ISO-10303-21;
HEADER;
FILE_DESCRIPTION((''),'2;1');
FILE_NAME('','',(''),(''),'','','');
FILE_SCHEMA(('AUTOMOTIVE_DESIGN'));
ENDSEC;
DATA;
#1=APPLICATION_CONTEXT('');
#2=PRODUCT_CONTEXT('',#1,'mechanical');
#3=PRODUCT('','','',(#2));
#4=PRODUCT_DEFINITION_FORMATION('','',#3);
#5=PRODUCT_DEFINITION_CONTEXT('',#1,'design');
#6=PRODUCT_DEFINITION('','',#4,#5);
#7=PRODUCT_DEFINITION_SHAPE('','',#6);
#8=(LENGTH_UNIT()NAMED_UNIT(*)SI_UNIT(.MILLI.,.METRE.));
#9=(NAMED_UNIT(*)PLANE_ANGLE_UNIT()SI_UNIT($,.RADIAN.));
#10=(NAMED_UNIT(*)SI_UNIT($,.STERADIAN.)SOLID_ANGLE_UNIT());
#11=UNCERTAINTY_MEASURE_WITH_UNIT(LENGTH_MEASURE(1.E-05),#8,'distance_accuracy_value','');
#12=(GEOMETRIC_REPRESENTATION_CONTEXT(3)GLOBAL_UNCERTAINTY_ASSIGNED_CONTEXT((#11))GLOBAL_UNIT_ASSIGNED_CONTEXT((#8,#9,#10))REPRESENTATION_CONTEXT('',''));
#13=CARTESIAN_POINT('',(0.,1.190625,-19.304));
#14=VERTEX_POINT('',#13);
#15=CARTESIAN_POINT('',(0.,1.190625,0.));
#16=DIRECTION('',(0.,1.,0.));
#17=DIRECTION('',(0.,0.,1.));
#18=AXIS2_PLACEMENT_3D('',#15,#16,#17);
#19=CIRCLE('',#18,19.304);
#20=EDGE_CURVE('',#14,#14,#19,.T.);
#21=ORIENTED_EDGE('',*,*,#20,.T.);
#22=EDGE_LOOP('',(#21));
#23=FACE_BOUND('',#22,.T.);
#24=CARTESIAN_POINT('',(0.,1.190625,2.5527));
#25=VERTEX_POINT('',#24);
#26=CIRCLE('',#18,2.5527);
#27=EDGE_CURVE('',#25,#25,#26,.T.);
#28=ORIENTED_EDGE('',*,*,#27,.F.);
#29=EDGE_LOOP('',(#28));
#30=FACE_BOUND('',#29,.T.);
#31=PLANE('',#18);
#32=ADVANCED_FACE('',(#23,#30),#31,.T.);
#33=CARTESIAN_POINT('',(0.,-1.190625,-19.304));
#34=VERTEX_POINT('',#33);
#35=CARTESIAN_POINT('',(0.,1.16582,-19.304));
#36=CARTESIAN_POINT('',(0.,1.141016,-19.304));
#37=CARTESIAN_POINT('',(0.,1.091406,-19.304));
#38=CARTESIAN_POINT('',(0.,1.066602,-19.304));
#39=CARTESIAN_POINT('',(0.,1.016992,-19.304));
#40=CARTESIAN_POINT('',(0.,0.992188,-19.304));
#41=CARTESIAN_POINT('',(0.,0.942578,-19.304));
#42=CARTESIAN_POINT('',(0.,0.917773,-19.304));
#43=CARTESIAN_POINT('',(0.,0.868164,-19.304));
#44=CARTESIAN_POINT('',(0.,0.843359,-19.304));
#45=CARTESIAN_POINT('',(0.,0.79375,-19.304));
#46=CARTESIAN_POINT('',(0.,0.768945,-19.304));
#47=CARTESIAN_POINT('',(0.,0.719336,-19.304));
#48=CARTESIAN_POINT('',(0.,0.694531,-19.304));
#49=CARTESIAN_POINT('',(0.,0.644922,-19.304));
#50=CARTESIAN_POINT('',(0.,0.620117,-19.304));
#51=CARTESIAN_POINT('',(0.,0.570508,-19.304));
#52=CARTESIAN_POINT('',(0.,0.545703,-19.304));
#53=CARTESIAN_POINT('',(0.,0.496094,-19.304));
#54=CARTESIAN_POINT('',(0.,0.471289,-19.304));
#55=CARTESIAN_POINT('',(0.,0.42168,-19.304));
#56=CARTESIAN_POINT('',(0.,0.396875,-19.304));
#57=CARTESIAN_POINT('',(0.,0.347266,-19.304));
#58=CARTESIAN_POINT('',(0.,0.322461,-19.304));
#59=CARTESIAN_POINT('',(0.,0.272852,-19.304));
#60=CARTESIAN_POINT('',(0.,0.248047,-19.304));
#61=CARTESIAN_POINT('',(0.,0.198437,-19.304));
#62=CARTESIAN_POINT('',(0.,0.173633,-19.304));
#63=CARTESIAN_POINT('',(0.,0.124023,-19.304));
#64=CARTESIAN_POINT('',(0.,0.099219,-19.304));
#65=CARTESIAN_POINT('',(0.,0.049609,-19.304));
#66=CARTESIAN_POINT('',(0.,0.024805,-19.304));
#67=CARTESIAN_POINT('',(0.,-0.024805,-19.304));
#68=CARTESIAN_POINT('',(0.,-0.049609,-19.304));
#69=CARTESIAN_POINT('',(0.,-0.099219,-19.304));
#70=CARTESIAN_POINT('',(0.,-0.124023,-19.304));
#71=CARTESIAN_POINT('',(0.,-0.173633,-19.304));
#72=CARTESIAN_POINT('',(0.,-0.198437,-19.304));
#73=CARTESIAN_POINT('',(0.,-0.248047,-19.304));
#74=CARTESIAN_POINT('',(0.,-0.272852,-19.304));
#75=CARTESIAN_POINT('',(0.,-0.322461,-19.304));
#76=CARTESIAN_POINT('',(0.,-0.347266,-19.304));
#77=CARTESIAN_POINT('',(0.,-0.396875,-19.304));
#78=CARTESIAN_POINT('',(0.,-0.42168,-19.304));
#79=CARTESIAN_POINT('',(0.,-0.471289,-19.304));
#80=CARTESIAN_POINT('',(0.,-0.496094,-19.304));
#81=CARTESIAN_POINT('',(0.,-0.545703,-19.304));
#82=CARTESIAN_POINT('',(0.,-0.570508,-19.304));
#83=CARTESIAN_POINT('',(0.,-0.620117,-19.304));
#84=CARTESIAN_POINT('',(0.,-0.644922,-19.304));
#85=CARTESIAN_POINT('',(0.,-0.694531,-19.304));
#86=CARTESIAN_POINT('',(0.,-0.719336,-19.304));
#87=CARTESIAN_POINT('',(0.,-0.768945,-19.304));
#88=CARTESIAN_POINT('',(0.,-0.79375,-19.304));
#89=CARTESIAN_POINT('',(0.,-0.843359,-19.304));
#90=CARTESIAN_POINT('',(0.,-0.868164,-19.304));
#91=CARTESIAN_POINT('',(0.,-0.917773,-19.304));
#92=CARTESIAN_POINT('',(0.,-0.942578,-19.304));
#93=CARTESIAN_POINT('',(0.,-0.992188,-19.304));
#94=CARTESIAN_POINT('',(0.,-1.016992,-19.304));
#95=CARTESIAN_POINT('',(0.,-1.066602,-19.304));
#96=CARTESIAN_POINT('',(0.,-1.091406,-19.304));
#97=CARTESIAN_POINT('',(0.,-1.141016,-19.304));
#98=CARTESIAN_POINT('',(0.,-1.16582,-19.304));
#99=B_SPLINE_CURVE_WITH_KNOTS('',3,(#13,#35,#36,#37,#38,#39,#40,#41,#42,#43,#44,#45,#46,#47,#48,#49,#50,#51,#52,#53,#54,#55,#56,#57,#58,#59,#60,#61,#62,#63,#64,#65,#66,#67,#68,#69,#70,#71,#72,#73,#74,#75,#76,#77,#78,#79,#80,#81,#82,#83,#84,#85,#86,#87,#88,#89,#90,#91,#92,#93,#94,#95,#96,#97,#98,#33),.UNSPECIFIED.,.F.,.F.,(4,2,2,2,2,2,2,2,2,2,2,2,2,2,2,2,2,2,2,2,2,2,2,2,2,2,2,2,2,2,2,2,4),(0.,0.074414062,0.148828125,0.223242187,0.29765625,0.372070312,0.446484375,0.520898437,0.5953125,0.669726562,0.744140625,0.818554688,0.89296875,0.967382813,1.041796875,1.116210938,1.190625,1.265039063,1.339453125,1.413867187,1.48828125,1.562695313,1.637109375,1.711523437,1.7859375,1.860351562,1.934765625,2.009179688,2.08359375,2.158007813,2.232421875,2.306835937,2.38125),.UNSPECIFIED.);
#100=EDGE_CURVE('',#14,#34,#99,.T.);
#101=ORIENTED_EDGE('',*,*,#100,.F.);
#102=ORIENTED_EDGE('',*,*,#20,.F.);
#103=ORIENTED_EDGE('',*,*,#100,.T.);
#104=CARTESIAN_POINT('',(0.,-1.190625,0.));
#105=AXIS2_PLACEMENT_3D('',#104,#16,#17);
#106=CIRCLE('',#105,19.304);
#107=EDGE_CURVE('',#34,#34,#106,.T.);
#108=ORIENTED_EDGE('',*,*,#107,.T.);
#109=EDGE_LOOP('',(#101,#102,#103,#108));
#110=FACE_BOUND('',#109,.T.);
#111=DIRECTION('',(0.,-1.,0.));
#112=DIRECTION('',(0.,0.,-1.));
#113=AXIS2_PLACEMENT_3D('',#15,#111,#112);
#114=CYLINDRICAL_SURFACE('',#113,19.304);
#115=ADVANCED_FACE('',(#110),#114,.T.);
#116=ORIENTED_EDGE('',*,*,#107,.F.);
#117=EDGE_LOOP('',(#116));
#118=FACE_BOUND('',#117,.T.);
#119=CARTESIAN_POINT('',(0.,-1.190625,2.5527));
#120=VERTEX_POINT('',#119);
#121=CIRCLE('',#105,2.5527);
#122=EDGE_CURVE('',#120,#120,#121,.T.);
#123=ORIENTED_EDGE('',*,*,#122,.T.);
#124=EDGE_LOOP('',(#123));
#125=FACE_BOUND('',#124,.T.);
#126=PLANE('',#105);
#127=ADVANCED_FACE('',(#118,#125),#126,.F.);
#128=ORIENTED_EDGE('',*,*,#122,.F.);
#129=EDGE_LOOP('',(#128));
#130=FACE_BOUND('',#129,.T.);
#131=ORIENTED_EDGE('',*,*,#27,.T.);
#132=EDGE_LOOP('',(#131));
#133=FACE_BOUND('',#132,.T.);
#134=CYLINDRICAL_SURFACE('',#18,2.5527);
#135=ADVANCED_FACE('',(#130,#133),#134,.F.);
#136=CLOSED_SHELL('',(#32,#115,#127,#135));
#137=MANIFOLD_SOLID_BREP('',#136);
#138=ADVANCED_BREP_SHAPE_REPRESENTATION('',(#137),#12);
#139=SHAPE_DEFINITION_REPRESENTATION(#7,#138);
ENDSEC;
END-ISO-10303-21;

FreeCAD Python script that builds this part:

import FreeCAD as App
import Part
import Sketcher
from FreeCAD import Vector
Q = App.Units.Quantity

doc = App.newDocument("Part")
body = doc.addObject("PartDesign::Body", "Body")

# Sketch on XZ plane
sketch1 = body.newObject("Sketcher::SketchObject", "Sketch")
sketch1.AttachmentSupport = (doc.getObject("XZ_Plane"), [""])
sketch1.MapMode = "FlatFace"
sketch1.addGeometry(Part.Circle(Vector(0, 0, 0), Vector(0, 0, 1), 19), False)
sketch1.addConstraint(Sketcher.Constraint("Coincident", 0, 3, -1, 1))
sketch1.addConstraint(Sketcher.Constraint("Diameter", 0, Q("1.52 in")))
pad1 = body.newObject("PartDesign::Pad", "Pad")
pad1.Profile = sketch1
pad1.Length = Q("0.09375 in")
pad1.Midplane = True

# Sketch on XZ plane
sketch2 = body.newObject("Sketcher::SketchObject", "Sketch001")
sketch2.AttachmentSupport = (doc.getObject("XZ_Plane"), [""])
sketch2.MapMode = "FlatFace"
sketch2.AttachmentOffset = App.Placement(Vector(0, 0, -0.046875 * 25.4), App.Rotation())
sketch2.addGeometry(Part.Circle(Vector(0, 0, 0), Vector(0, 0, 1), 2.6), False)
sketch2.addConstraint(Sketcher.Constraint("Coincident", 0, 3, -1, 1))
sketch2.addConstraint(Sketcher.Constraint("Diameter", 0, Q("0.201 in")))
doc.recompute()
hole = body.newObject("PartDesign::Hole", "Hole")
hole.Profile = sketch2
hole.ThreadType = "None"
hole.Diameter = Q("0.201 in")
hole.DepthType = "ThroughAll"
hole.Reversed = True

doc.recompute()
